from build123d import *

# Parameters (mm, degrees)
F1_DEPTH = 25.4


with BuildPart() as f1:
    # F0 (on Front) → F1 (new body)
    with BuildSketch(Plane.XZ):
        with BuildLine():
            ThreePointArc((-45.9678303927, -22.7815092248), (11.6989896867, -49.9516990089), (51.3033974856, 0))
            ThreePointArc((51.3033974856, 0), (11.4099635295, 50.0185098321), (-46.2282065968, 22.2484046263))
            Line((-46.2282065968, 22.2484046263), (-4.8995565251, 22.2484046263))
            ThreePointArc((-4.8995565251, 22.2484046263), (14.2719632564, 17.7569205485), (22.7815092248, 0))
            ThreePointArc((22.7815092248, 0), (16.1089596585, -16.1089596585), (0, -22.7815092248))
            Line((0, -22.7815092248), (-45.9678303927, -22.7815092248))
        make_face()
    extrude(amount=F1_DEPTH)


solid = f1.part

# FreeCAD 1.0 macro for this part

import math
import FreeCAD as App
import Part
import Sketcher
Q = App.Units.Quantity

doc = App.newDocument("Part")
body = doc.addObject("PartDesign::Body", "Body")

# Sketch on XZ plane
sketch1 = doc.addObject("Sketcher::SketchObject", "Sketch")
body.addObject(sketch1)
sketch1.AttachmentSupport = (doc.XZ_Plane, [""])
sketch1.MapMode = "FlatFace"
sketch1.addGeometry([
    Part.ArcOfCircle(Part.Circle(App.Vector(0, 0, 0), App.Vector(0, 0, 1), 51), math.radians(-154), math.radians(154)),  # 0
    Part.LineSegment(App.Vector(-46, 22, 0), App.Vector(-5, 22, 0)),  # 1
    Part.ArcOfCircle(Part.Circle(App.Vector(0, 0, 0), App.Vector(0, 0, 1), 23), math.radians(0), math.radians(102)),  # 2
    Part.ArcOfCircle(Part.Circle(App.Vector(0, 0, 0), App.Vector(0, 0, 1), 23), math.radians(-90), math.radians(0)),  # 3
    Part.LineSegment(App.Vector(0, -23, 0), App.Vector(-46, -23, 0)),  # 4
], False)
sketch1.addConstraint([
    Sketcher.Constraint("Coincident", 0, 2, 1, 1),
    Sketcher.Constraint("Coincident", 1, 2, 2, 2),
    Sketcher.Constraint("Tangent", 2, 1, 3, 2),
    Sketcher.Constraint("Tangent", 3, 1, 4, 1),
    Sketcher.Constraint("Coincident", 4, 2, 0, 1),
    Sketcher.Constraint("Horizontal", 1),
    Sketcher.Constraint("Horizontal", 4),
    Sketcher.Constraint("Coincident", 0, 3, -1, 1),
    Sketcher.Constraint("Coincident", 2, 3, -1, 1),
    Sketcher.Constraint("Equal", 2, 3),
    Sketcher.Constraint("PointOnObject", 2, 1, -1),
    Sketcher.Constraint("Radius", 2, 22.781509),
    Sketcher.Constraint("Radius", 0, 51.303397),
    Sketcher.Constraint("DistanceX", 1, 1, 1, 2, 41.32865),
])
pad1 = doc.addObject("PartDesign::Pad", "Pad")
body.addObject(pad1)
pad1.Profile = sketch1
pad1.Length = Q("1 in")

doc.recompute()
